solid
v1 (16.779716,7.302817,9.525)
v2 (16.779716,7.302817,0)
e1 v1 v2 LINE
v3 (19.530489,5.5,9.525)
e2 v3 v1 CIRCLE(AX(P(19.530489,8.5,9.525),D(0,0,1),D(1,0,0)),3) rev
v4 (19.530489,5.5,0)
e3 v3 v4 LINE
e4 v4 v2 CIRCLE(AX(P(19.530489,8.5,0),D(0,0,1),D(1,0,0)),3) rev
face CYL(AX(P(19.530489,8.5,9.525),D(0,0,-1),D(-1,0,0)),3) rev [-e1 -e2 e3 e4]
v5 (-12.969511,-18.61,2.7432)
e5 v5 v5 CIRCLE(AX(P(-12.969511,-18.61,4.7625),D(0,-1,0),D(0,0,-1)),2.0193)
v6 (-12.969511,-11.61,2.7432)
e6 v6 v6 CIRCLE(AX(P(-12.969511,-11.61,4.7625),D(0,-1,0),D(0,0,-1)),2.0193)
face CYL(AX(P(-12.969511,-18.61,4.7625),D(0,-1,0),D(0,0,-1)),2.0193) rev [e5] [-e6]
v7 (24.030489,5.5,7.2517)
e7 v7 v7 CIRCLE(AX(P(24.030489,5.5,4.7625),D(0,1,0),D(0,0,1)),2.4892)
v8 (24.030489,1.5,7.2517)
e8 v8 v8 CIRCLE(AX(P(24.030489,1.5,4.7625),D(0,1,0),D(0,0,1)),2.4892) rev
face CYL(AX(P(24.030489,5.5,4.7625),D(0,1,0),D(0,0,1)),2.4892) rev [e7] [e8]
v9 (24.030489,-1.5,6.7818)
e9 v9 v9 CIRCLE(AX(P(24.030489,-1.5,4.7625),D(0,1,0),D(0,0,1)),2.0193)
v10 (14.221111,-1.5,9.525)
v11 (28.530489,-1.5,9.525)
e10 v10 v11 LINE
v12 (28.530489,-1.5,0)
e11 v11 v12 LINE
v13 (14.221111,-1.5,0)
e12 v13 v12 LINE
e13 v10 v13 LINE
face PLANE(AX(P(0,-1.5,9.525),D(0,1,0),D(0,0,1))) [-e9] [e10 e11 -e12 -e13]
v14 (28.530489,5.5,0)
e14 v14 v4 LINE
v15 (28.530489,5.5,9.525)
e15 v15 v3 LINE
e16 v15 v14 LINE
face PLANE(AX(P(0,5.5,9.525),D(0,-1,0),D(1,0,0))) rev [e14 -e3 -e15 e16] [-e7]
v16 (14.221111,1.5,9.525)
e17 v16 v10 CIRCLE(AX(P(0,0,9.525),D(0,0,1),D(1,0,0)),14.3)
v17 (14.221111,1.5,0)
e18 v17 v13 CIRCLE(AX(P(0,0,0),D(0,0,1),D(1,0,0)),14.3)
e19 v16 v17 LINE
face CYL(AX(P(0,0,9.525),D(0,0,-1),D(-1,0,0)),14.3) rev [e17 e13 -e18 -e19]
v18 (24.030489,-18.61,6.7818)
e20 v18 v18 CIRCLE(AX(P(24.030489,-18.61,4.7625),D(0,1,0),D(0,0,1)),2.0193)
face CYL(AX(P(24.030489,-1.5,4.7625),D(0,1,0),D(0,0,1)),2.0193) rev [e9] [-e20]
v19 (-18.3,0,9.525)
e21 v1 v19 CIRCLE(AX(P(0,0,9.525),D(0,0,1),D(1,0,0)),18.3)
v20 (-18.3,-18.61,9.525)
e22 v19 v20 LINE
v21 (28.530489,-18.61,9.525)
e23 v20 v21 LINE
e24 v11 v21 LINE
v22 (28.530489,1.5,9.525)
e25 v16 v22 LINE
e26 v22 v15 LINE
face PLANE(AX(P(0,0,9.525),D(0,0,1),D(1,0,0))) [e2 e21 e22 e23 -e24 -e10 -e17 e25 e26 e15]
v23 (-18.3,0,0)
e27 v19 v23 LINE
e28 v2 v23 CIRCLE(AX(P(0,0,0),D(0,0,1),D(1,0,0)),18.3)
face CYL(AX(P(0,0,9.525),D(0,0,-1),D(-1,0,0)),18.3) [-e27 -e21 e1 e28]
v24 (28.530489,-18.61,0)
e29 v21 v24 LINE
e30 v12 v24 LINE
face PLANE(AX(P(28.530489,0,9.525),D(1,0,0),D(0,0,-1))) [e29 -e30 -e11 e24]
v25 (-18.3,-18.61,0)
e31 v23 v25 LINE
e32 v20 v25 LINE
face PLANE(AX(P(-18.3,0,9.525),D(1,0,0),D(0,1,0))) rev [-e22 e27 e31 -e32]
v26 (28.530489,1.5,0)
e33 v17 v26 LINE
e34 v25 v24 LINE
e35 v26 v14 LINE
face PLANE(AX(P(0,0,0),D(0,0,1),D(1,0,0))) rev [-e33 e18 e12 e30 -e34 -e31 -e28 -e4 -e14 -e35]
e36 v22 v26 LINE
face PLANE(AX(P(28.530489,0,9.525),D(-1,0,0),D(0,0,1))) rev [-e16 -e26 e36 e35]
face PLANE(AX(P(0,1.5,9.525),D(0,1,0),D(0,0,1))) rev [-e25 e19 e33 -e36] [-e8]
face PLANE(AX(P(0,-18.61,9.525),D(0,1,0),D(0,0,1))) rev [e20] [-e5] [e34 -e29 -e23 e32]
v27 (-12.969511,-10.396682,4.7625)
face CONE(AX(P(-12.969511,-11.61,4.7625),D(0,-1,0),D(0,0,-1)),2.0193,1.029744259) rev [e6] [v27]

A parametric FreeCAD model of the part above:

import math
import FreeCAD as App
import Part
import Sketcher

V = App.Vector

doc = App.newDocument("Part")
body = doc.addObject("PartDesign::Body", "Body")

# Sketch on XY plane
sketch1 = body.newObject("Sketcher::SketchObject", "Sketch")
sketch1.AttachmentSupport = (doc.getObject("XY_Plane"), [""])
sketch1.MapMode = "FlatFace"
sketch1.addGeometry([
    Part.ArcOfCircle(Part.Circle(V(0, 0, 0), V(0, 0, 1), 14.3), math.radians(6), math.radians(354)),  # 0
    Part.LineSegment(V(14.2, 1.5, 0), V(28.5, 1.5, 0)),  # 1
    Part.LineSegment(V(28.5, 1.5, 0), V(28.5, 5.5, 0)),  # 2
    Part.LineSegment(V(28.5, 5.5, 0), V(19.5, 5.5, 0)),  # 3
    Part.ArcOfCircle(Part.Circle(V(19.5, 8.5, 0), V(0, 0, 1), 3), math.radians(-156), math.radians(-90)),  # 4
    Part.ArcOfCircle(Part.Circle(V(0, 0, 0), V(0, 0, 1), 18.3), math.radians(24), math.radians(180)),  # 5
    Part.LineSegment(V(-18.3, 0, 0), V(-18.3, -18.6, 0)),  # 6
    Part.LineSegment(V(-18.3, -18.6, 0), V(28.5, -18.6, 0)),  # 7
    Part.LineSegment(V(28.5, -18.6, 0), V(28.5, -1.5, 0)),  # 8
    Part.LineSegment(V(28.5, -1.5, 0), V(14.2, -1.5, 0)),  # 9
], False)
sketch1.addConstraint([
    Sketcher.Constraint("Coincident", 0, 1, 1, 1),
    Sketcher.Constraint("Coincident", 1, 2, 2, 1),
    Sketcher.Constraint("Coincident", 2, 2, 3, 1),
    Sketcher.Constraint("Tangent", 3, 2, 4, 2),
    Sketcher.Constraint("Tangent", 4, 1, 5, 1),
    Sketcher.Constraint("Tangent", 5, 2, 6, 1),
    Sketcher.Constraint("Coincident", 6, 2, 7, 1),
    Sketcher.Constraint("Coincident", 7, 2, 8, 1),
    Sketcher.Constraint("Coincident", 8, 2, 9, 1),
    Sketcher.Constraint("Coincident", 9, 2, 0, 2),
    Sketcher.Constraint("Horizontal", 1),
    Sketcher.Constraint("Vertical", 2),
    Sketcher.Constraint("Horizontal", 3),
    Sketcher.Constraint("Vertical", 6),
    Sketcher.Constraint("Horizontal", 7),
    Sketcher.Constraint("Vertical", 8),
    Sketcher.Constraint("Horizontal", 9),
    Sketcher.Constraint("Coincident", 0, 3, -1, 1),
    Sketcher.Constraint("Coincident", 5, 3, -1, 1),
    Sketcher.Constraint("Symmetric", 1, 2, 8, 2, -1),
    Sketcher.Constraint("Radius", 4, 3.0),
    Sketcher.Constraint("Radius", 0, 14.3),
    Sketcher.Constraint("Radius", 5, 18.3),
    Sketcher.Constraint("DistanceX", 3, 2, 3, 1, 9.0),
    Sketcher.Constraint("DistanceY", 2, 1, 2, 2, 4.0),
    Sketcher.Constraint("DistanceY", 8, 2, 1, 2, 3.0),
    Sketcher.Constraint("DistanceY", 6, 2, 6, 1, 18.61),
])
pad1 = body.newObject("PartDesign::Pad", "Pad")
pad1.Profile = sketch1
pad1.Length = 9.525

# Sketch on XZ plane
sketch2 = body.newObject("Sketcher::SketchObject", "Sketch001")
sketch2.AttachmentSupport = (doc.getObject("XZ_Plane"), [""])
sketch2.MapMode = "FlatFace"
sketch2.AttachmentOffset = App.Placement(V(0, 0, -5.5), App.Rotation())
sketch2.addGeometry(Part.Circle(V(24, 4.8, 0), V(0, 0, 1), 2.5), False)
sketch2.addConstraint([
    Sketcher.Constraint("Diameter", 0, 4.9784),
    Sketcher.Constraint("DistanceY", -1, 1, 0, 3, 4.7625),
    Sketcher.Constraint("DistanceX", -1, 1, 0, 3, 24.030489),
])
doc.recompute()
hole = body.newObject("PartDesign::Hole", "Hole")
hole.Profile = sketch2
hole.ThreadType = "None"
hole.Diameter = 4.9784
hole.DepthType = "Dimension"
hole.Depth = 4
hole.DrillPoint = "Angled"
hole.DrillPointAngle = 118
hole.Reversed = True

# Sketch on XZ plane
sketch3 = body.newObject("Sketcher::SketchObject", "Sketch002")
sketch3.AttachmentSupport = (doc.getObject("XZ_Plane"), [""])
sketch3.MapMode = "FlatFace"
sketch3.AttachmentOffset = App.Placement(V(0, 0, 1.5), App.Rotation())
sketch3.addGeometry(Part.Circle(V(24, 4.8, 0), V(0, 0, 1), 2), False)
sketch3.addConstraint([
    Sketcher.Constraint("Diameter", 0, 4.0386),
    Sketcher.Constraint("DistanceY", -1, 1, 0, 3, 4.7625),
    Sketcher.Constraint("DistanceX", -1, 1, 0, 3, 24.030489),
])
doc.recompute()
hole2 = body.newObject("PartDesign::Hole", "Hole001")
hole2.Profile = sketch3
hole2.ThreadType = "None"
hole2.Diameter = 4.0386
hole2.DepthType = "ThroughAll"
hole2.Reversed = True

# Sketch on XZ plane
sketch4 = body.newObject("Sketcher::SketchObject", "Sketch003")
sketch4.AttachmentSupport = (doc.getObject("XZ_Plane"), [""])
sketch4.MapMode = "FlatFace"
sketch4.AttachmentOffset = App.Placement(V(0, 0, 18.61), App.Rotation())
sketch4.addGeometry(Part.Circle(V(-13, 4.8, 0), V(0, 0, 1), 2), False)
sketch4.addConstraint([
    Sketcher.Constraint("Diameter", 0, 4.0386),
    Sketcher.Constraint("DistanceY", -1, 1, 0, 3, 4.7625),
    Sketcher.Constraint("DistanceX", 0, 3, -1, 1, 12.969511),
])
doc.recompute()
hole3 = body.newObject("PartDesign::Hole", "Hole002")
hole3.Profile = sketch4
hole3.ThreadType = "None"
hole3.Diameter = 4.0386
hole3.DepthType = "Dimension"
hole3.Depth = 7
hole3.DrillPoint = "Angled"
hole3.DrillPointAngle = 118

doc.recompute()
